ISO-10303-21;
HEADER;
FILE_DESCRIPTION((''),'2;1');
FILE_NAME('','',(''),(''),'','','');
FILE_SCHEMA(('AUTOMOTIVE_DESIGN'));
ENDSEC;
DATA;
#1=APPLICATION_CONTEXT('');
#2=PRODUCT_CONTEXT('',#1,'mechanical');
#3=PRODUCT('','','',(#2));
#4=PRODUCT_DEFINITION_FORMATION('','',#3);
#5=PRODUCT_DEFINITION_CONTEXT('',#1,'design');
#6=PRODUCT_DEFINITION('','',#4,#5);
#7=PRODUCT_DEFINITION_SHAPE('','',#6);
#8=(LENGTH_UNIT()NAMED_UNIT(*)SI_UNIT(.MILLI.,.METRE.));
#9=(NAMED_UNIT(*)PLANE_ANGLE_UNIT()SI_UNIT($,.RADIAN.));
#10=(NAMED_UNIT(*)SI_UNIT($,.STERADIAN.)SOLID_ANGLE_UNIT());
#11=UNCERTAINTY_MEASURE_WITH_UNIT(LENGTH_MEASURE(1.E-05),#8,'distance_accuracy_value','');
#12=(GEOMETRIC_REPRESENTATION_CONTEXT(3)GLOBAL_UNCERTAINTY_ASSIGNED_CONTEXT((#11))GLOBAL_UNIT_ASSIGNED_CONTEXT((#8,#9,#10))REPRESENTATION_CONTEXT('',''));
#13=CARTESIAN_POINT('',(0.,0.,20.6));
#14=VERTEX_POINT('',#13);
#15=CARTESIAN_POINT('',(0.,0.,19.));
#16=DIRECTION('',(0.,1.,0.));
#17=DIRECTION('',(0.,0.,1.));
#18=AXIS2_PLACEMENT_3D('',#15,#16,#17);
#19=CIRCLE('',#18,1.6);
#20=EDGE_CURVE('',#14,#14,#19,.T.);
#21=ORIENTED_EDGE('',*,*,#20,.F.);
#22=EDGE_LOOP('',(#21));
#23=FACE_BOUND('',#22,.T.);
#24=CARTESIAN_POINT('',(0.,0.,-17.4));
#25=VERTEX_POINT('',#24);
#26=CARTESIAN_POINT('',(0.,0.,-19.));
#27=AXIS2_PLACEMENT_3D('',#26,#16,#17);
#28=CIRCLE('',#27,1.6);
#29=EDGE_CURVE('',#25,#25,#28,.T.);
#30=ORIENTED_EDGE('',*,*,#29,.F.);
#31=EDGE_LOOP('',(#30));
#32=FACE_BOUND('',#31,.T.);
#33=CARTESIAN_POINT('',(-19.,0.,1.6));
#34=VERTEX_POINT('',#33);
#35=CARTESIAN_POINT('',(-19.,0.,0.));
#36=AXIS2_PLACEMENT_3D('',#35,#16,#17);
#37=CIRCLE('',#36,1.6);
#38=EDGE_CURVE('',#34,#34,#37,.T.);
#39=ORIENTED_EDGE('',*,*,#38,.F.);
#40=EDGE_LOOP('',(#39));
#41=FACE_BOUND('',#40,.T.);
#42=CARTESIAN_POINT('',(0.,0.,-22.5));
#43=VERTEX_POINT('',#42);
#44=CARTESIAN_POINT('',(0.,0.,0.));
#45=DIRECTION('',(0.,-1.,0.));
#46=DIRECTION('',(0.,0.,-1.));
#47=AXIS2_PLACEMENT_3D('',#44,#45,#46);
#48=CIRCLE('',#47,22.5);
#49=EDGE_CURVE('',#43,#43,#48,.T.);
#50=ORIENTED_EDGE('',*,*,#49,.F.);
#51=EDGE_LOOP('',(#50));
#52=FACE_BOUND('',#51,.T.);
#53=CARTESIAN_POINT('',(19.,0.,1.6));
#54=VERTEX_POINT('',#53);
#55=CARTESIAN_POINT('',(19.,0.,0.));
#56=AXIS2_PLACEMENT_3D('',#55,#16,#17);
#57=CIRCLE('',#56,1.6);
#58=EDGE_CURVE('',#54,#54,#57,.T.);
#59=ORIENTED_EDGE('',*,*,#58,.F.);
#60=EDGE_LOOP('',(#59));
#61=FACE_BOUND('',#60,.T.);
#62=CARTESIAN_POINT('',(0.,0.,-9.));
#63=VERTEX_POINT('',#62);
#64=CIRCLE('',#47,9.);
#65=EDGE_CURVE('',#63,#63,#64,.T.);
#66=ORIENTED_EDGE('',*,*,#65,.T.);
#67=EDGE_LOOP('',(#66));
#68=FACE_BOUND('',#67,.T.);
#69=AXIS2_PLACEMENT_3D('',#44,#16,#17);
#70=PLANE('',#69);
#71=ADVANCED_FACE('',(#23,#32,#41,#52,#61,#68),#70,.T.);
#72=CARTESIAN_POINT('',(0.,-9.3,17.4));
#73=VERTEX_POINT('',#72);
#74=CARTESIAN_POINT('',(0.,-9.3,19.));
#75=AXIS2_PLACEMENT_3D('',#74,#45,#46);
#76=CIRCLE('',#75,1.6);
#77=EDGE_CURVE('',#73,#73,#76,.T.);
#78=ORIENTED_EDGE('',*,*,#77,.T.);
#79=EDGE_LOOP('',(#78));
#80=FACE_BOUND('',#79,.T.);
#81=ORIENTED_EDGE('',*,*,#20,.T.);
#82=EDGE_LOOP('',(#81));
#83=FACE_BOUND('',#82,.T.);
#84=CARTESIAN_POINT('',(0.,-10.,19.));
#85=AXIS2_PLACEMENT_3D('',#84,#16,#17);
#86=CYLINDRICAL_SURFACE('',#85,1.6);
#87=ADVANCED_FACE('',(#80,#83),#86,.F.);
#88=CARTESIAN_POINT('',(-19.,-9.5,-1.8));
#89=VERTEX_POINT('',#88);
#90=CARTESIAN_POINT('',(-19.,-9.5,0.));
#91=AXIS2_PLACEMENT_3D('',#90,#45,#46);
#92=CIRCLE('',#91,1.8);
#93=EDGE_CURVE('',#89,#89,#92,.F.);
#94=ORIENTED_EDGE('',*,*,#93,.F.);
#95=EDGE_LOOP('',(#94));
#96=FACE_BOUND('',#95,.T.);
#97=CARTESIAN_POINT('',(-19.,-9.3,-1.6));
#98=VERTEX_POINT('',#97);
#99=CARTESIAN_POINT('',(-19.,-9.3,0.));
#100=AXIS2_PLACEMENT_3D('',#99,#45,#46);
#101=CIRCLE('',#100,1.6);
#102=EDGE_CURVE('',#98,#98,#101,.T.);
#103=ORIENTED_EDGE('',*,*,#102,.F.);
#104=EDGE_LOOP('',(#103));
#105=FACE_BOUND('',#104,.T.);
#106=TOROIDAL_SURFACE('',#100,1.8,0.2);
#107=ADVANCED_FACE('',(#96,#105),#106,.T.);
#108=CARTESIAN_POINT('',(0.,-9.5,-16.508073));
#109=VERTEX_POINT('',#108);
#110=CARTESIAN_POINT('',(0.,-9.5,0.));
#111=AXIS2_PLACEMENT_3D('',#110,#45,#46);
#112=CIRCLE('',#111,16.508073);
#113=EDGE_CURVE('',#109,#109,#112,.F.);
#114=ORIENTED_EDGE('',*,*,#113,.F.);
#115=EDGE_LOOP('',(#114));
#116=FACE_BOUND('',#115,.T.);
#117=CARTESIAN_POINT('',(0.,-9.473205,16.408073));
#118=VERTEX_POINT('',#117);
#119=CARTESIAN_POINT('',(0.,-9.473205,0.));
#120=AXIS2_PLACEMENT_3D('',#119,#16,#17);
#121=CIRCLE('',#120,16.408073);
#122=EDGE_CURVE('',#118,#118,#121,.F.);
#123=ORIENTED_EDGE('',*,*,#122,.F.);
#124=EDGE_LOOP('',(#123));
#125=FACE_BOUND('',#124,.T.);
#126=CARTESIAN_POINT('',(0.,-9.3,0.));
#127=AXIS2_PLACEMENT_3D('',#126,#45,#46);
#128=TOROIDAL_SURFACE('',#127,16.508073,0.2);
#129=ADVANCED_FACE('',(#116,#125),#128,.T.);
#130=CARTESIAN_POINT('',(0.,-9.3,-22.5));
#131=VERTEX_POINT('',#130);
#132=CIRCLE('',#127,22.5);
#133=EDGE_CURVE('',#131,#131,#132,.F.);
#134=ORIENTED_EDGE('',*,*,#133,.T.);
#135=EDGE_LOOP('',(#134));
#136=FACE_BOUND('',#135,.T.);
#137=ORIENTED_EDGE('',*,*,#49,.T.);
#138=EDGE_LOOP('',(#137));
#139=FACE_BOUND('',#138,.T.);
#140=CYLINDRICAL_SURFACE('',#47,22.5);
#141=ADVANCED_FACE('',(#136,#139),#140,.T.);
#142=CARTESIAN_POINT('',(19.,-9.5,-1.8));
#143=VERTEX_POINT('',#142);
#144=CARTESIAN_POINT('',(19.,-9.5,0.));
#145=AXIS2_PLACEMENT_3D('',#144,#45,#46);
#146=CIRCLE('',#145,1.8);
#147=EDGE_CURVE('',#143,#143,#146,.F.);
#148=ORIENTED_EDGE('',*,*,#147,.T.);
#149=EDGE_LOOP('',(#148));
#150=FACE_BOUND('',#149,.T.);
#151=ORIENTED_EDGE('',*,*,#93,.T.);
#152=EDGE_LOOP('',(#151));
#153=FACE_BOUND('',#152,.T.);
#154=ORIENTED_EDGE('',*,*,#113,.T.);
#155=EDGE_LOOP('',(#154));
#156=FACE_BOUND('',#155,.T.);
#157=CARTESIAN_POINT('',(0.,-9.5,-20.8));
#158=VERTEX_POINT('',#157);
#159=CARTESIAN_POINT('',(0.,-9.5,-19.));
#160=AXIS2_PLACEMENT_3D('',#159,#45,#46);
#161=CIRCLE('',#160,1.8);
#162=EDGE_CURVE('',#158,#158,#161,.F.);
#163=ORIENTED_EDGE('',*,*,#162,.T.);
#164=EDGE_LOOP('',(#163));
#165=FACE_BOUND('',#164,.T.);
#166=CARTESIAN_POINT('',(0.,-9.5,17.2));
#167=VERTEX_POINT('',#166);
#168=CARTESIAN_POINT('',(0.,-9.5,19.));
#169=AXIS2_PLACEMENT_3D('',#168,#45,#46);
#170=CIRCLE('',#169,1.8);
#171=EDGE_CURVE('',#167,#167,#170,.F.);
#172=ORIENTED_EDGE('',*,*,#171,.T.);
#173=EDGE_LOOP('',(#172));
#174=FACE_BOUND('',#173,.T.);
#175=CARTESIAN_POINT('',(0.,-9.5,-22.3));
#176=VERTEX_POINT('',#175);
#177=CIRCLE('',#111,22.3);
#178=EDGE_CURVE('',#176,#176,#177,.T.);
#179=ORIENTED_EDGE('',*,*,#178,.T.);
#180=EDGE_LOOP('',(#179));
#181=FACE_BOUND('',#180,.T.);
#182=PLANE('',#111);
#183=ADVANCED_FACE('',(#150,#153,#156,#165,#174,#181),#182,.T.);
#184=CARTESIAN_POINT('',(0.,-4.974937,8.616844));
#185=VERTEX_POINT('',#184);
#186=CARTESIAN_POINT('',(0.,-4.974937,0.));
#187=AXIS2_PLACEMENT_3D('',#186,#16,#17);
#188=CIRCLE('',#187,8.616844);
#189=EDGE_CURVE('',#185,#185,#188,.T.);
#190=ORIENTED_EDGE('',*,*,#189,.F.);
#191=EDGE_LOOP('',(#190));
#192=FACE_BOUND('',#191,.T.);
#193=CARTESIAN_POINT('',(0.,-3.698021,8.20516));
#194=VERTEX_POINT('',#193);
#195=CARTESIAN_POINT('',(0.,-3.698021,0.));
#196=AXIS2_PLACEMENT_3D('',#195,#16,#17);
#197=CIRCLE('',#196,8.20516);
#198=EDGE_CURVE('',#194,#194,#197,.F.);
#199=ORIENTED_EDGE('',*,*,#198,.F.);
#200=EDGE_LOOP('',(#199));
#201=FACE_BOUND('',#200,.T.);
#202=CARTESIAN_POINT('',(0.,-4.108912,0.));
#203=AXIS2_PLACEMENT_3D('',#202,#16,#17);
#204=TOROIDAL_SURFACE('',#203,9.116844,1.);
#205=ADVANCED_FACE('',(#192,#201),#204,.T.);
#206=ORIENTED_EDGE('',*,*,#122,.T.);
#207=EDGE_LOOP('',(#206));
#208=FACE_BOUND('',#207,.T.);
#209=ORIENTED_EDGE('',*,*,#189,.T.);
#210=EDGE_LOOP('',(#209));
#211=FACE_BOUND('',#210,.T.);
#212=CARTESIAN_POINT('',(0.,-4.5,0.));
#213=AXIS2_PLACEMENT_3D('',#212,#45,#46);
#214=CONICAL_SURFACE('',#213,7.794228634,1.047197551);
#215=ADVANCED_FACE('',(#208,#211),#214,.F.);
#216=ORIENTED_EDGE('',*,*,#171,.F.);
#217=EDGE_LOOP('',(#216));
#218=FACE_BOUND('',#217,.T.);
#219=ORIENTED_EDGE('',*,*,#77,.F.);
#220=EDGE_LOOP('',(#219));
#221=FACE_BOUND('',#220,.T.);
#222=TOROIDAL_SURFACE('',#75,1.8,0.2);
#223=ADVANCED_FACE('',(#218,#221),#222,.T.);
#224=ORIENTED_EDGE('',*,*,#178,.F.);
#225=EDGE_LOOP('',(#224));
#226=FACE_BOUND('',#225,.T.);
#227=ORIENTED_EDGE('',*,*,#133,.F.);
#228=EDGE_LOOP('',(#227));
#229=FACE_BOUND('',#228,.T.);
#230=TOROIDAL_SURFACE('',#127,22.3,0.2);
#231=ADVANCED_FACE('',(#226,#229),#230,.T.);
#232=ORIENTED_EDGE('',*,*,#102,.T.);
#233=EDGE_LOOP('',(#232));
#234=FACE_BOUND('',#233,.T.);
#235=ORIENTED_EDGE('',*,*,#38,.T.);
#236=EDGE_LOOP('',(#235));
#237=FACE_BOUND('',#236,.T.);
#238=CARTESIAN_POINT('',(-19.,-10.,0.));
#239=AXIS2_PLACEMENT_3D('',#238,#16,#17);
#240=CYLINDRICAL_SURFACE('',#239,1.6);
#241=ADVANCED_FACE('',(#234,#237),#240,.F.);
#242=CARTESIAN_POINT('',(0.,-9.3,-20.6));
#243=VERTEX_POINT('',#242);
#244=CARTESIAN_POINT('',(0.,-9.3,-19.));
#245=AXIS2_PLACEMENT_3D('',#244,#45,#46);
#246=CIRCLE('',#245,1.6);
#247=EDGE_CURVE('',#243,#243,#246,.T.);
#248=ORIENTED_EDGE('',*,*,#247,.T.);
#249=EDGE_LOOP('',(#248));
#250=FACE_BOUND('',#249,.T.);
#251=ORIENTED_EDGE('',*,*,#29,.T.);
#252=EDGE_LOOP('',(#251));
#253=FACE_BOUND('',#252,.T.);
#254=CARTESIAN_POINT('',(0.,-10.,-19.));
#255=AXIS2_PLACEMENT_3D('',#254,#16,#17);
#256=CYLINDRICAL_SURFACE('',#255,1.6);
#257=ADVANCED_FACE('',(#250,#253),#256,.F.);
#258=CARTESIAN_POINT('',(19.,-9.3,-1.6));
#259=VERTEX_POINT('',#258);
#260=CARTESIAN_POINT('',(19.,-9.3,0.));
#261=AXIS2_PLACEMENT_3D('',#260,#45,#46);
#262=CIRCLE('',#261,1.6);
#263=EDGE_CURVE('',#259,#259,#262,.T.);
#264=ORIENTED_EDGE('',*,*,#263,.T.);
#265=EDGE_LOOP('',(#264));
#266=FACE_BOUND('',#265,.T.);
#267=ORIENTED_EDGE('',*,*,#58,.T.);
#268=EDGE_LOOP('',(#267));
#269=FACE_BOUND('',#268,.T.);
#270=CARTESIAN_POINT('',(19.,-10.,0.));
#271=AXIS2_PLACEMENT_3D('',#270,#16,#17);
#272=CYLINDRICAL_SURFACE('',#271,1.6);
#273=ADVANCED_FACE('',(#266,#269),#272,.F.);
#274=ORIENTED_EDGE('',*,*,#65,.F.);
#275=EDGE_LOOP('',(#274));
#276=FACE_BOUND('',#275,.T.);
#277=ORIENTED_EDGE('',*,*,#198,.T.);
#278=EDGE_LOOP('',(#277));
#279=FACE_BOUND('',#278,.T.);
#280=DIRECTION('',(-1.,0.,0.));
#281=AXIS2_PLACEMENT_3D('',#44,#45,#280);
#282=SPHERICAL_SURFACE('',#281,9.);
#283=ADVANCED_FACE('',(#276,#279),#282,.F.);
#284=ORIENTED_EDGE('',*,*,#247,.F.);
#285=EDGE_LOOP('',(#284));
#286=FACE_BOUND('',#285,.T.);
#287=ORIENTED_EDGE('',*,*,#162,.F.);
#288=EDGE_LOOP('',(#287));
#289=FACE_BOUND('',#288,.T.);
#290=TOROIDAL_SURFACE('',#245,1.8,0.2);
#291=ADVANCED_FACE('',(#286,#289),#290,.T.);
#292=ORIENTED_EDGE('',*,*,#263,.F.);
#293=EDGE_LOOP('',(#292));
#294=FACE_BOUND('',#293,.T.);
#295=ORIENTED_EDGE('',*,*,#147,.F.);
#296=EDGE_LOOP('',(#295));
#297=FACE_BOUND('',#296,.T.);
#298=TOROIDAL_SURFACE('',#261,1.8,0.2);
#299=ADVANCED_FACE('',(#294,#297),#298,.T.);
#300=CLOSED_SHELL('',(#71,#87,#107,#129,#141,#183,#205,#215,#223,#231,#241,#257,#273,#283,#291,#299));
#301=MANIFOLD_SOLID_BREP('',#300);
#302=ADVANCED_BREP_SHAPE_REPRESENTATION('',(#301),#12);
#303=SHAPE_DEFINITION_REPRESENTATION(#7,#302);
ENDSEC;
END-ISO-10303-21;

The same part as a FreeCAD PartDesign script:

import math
import FreeCAD as App
import Part
import Sketcher

V = App.Vector
Q = App.Units.Quantity


def edges_at(feature, points):
    """Names of the edges that pass closest to the given points."""
    edges = feature.Shape.Edges
    near = lambda p: min(range(len(edges)), key=lambda i: edges[i].distToShape(Part.Vertex(*p))[0])
    return sorted({f"Edge{near(p) + 1}" for p in points})

doc = App.newDocument("Part")
body = doc.addObject("PartDesign::Body", "Body")

# Sketch on XY plane
sketch1 = body.newObject("Sketcher::SketchObject", "Sketch")
sketch1.AttachmentSupport = (doc.getObject("XY_Plane"), [""])
sketch1.MapMode = "FlatFace"
sketch1.addGeometry([
    Part.ArcOfCircle(Part.Circle(V(0, 0, 0), V(0, 0, 1), 9), math.radians(180), math.radians(210)),  # 0
    Part.LineSegment(V(-9, 0, 0), V(-22.5, 0, 0)),  # 1
    Part.LineSegment(V(-22.5, 0, 0), V(-22.5, -9.5, 0)),  # 2
    Part.LineSegment(V(-22.5, -9.5, 0), V(-16.5, -9.5, 0)),  # 3
    Part.LineSegment(V(-16.5, -9.5, 0), V(-7.8, -4.5, 0)),  # 4
], False)
sketch1.addConstraint([
    Sketcher.Constraint("Coincident", 0, 1, 1, 1),
    Sketcher.Constraint("Coincident", 1, 2, 2, 1),
    Sketcher.Constraint("Coincident", 2, 2, 3, 1),
    Sketcher.Constraint("Coincident", 3, 2, 4, 1),
    Sketcher.Constraint("Coincident", 4, 2, 0, 2),
    Sketcher.Constraint("Horizontal", 1),
    Sketcher.Constraint("Vertical", 2),
    Sketcher.Constraint("Horizontal", 3),
    Sketcher.Constraint("Coincident", 0, 3, -1, 1),
    Sketcher.Constraint("PointOnObject", 0, 1, -1),
    Sketcher.Constraint("Radius", 0, 9.0),
    Sketcher.Constraint("Angle", 4, Q("30 deg")),
    Sketcher.Constraint("Distance", 4, 10.0),
    Sketcher.Constraint("DistanceX", 1, 2, 1, 1, 13.5),
    Sketcher.Constraint("DistanceY", 2, 2, 2, 1, 9.5),
])
revolution = body.newObject("PartDesign::Revolution", "Revolution")
revolution.Profile = sketch1
revolution.ReferenceAxis = (sketch1, ["V_Axis"])
revolution.Angle = 360

# Sketch on XZ plane
sketch2 = body.newObject("Sketcher::SketchObject", "Sketch001")
sketch2.AttachmentSupport = (doc.getObject("XZ_Plane"), [""])
sketch2.MapMode = "FlatFace"
sketch2.addGeometry([
    Part.Circle(V(-19, 0, 0), V(0, 0, 1), 1.6),
    Part.Circle(V(0, -19, 0), V(0, 0, 1), 1.6),
    Part.Circle(V(19, 0, 0), V(0, 0, 1), 1.6),
    Part.Circle(V(0, 19, 0), V(0, 0, 1), 1.6),
], False)
sketch2.addConstraint([
    Sketcher.Constraint("Equal", 0, 1),
    Sketcher.Constraint("Equal", 1, 2),
    Sketcher.Constraint("Equal", 2, 3),
    Sketcher.Constraint("Symmetric", 0, 3, 2, 3, -1, 1),
    Sketcher.Constraint("Symmetric", 1, 3, 3, 3, -1, 1),
    Sketcher.Constraint("PointOnObject", 0, 3, -1),
    Sketcher.Constraint("PointOnObject", 1, 3, -2),
    Sketcher.Constraint("Diameter", 0, 3.2),
    Sketcher.Constraint("DistanceX", 0, 3, -1, 1, 19.0),
    Sketcher.Constraint("DistanceY", 1, 3, -1, 1, 19.0),
])
pocket1 = body.newObject("PartDesign::Pocket", "Pocket")
pocket1.Profile = sketch2
pocket1.Length = 10
pocket1.Reversed = True
doc.recompute()

fillet = body.newObject("PartDesign::Fillet", "Fillet")
fillet.Base = (pocket1, edges_at(pocket1, [
    (-19, -9.5, -1.6),
    (0, -9.5, -20.6),
    (19, -9.5, -1.6),
    (0, -9.5, 17.4),
    (0, -9.5, 16.454),
    (0, -9.5, 22.5),
]))
fillet.Radius = 0.2
doc.recompute()

fillet2 = body.newObject("PartDesign::Fillet", "Fillet001")
fillet2.Base = (fillet, edges_at(fillet, [(0, -4.5, 7.794)]))
fillet2.Radius = 1

doc.recompute()
